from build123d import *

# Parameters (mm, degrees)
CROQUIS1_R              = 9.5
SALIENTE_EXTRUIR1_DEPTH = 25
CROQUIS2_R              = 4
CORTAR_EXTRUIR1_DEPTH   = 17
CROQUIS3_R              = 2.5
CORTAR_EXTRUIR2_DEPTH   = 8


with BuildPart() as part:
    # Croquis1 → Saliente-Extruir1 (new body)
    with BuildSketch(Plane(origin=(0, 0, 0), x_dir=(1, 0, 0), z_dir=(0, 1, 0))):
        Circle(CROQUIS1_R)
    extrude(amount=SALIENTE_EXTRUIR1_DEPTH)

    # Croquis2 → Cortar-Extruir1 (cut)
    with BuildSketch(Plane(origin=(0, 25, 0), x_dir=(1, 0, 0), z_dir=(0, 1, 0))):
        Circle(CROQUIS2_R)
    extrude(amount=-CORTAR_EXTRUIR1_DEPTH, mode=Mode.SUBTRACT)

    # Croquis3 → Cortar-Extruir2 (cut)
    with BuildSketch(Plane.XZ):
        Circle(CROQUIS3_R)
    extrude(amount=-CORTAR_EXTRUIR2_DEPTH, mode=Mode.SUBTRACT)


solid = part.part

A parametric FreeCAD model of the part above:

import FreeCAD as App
import Part
import Sketcher

doc = App.newDocument("Part")
body = doc.addObject("PartDesign::Body", "Body")

# Sketch on XZ plane
sketch1 = body.newObject("Sketcher::SketchObject", "Sketch")
sketch1.AttachmentSupport = (doc.getObject("XZ_Plane"), [""])
sketch1.MapMode = "FlatFace"
sketch1.addGeometry(Part.Circle(App.Vector(0, 0, 0), App.Vector(0, 0, 1), 9.5), False)
sketch1.addConstraint(Sketcher.Constraint("Coincident", 0, 3, -1, 1))
sketch1.addConstraint(Sketcher.Constraint("Diameter", 0, 19.0))
pad1 = body.newObject("PartDesign::Pad", "Pad")
pad1.Profile = sketch1
pad1.Length = 25
pad1.Reversed = True

# Sketch on XZ plane
sketch2 = body.newObject("Sketcher::SketchObject", "Sketch001")
sketch2.AttachmentSupport = (doc.getObject("XZ_Plane"), [""])
sketch2.MapMode = "FlatFace"
sketch2.AttachmentOffset = App.Placement(App.Vector(0, 0, -25), App.Rotation())
sketch2.addGeometry(Part.Circle(App.Vector(0, 0, 0), App.Vector(0, 0, 1), 4), False)
sketch2.addConstraint(Sketcher.Constraint("Coincident", 0, 3, -1, 1))
sketch2.addConstraint(Sketcher.Constraint("Diameter", 0, 8.0))
pocket1 = body.newObject("PartDesign::Pocket", "Pocket")
pocket1.Profile = sketch2
pocket1.Length = 17
pocket1.Reversed = True

# Sketch on XZ plane
sketch3 = body.newObject("Sketcher::SketchObject", "Sketch002")
sketch3.AttachmentSupport = (doc.getObject("XZ_Plane"), [""])
sketch3.MapMode = "FlatFace"
sketch3.addGeometry(Part.Circle(App.Vector(0, 0, 0), App.Vector(0, 0, 1), 2.5), False)
sketch3.addConstraint(Sketcher.Constraint("Coincident", 0, 3, -1, 1))
sketch3.addConstraint(Sketcher.Constraint("Diameter", 0, 5.0))
pocket2 = body.newObject("PartDesign::Pocket", "Pocket001")
pocket2.Profile = sketch3
pocket2.Length = 8

doc.recompute()
